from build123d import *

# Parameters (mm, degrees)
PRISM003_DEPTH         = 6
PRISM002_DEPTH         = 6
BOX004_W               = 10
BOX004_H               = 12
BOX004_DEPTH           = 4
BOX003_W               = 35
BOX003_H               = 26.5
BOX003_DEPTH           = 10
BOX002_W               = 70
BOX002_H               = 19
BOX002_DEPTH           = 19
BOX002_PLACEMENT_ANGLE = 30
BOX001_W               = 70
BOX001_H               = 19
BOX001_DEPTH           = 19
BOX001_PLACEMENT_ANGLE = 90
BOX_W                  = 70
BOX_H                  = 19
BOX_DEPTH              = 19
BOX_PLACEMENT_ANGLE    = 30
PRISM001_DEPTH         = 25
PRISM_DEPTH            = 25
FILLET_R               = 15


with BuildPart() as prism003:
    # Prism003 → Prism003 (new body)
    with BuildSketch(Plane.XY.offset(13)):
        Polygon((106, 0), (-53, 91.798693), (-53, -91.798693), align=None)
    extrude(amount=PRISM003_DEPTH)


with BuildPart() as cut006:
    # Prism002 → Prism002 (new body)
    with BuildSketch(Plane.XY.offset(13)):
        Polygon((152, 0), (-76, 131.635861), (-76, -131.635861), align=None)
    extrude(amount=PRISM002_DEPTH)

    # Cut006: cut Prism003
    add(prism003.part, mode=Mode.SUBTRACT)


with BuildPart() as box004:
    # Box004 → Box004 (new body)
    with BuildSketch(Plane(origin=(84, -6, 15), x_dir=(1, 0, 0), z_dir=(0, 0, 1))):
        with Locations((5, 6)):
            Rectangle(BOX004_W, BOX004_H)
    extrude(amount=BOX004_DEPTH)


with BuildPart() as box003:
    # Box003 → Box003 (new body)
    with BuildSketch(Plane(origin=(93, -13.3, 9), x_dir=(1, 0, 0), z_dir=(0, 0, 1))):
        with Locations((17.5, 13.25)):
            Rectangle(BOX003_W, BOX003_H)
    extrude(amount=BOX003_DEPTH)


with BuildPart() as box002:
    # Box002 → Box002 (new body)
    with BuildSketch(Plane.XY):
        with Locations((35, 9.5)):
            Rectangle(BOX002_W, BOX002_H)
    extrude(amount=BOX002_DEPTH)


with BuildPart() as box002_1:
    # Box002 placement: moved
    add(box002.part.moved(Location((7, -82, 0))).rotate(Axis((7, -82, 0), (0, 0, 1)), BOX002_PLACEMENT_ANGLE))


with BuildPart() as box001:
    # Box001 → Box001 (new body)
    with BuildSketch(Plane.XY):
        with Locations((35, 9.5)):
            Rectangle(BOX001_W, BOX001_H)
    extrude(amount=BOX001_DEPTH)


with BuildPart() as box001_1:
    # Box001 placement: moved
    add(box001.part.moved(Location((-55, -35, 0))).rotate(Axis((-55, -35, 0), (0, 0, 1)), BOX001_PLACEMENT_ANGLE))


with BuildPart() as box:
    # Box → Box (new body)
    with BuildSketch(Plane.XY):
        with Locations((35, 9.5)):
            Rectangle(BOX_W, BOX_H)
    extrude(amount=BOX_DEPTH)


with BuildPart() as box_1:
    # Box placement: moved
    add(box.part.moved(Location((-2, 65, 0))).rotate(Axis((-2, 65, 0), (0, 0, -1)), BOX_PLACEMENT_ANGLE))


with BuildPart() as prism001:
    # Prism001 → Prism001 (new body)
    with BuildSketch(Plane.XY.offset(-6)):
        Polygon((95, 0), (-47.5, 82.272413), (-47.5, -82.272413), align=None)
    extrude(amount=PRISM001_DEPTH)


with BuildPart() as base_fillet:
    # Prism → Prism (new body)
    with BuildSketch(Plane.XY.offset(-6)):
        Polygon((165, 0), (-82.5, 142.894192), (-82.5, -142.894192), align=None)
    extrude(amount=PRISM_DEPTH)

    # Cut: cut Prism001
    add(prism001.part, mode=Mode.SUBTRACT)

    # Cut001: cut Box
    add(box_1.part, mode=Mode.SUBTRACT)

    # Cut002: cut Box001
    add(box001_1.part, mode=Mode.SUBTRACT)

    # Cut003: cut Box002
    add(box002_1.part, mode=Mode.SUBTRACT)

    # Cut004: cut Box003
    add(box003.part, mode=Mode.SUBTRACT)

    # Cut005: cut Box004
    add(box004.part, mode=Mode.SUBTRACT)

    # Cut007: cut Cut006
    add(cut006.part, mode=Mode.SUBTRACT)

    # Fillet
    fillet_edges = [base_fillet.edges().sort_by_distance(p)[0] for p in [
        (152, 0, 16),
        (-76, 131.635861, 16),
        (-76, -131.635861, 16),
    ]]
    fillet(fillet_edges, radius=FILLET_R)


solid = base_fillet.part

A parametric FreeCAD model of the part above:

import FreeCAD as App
import Part
import Sketcher

V = App.Vector
Q = App.Units.Quantity


def edges_at(feature, points):
    """Names of the edges that pass closest to the given points."""
    edges = feature.Shape.Edges
    near = lambda p: min(range(len(edges)), key=lambda i: edges[i].distToShape(Part.Vertex(*p))[0])
    return sorted({f"Edge{near(p) + 1}" for p in points})

doc = App.newDocument("Part")
params = doc.addObject("Spreadsheet::Sheet", "Params")
for row, (alias, value) in enumerate([
    ("pad1_length", "6 mm"),
    ("pad2_length", "6 mm"),
    ("sketch3_width", "10 mm"),
    ("sketch3_height", "12 mm"),
    ("pad3_length", "4 mm"),
    ("sketch4_width", "35 mm"),
    ("sketch4_height", "26.5 mm"),
    ("pad4_length", "10 mm"),
    ("sketch5_width", "70 mm"),
    ("sketch5_height", "19 mm"),
    ("pad5_length", "19 mm"),
    ("sketch6_width", "70 mm"),
    ("sketch6_height", "19 mm"),
    ("pad6_length", "19 mm"),
    ("sketch7_width", "70 mm"),
    ("sketch7_height", "19 mm"),
    ("pad7_length", "19 mm"),
    ("pad8_length", "25 mm"),
    ("pad9_length", "25 mm"),
    ("fillet_radius", "15 mm"),
], start=1):
    params.set(f"A{row}", alias)
    params.set(f"B{row}", "=" + value)
    params.setAlias(f"B{row}", alias)

body = doc.addObject("PartDesign::Body", "Body")

# Sketch on XY plane
sketch1 = doc.addObject("Sketcher::SketchObject", "Sketch")
body.addObject(sketch1)
sketch1.AttachmentSupport = (doc.XY_Plane, [""])
sketch1.MapMode = "FlatFace"
sketch1.AttachmentOffset = App.Placement(V(0, 0, 13), App.Rotation())
sketch1.addGeometry([
    Part.LineSegment(V(106, 0, 0), V(-53, 91.798693, 0)),
    Part.LineSegment(V(-53, 91.798693, 0), V(-53, -91.798693, 0)),
    Part.LineSegment(V(-53, -91.798693, 0), V(106, 0, 0)),
], False)
sketch1.addConstraint([
    Sketcher.Constraint("Coincident", 0, 2, 1, 1),
    Sketcher.Constraint("Coincident", 1, 2, 2, 1),
    Sketcher.Constraint("Coincident", 2, 2, 0, 1),
    Sketcher.Constraint("Vertical", 1),
    Sketcher.Constraint("PointOnObject", 2, 2, -1),
    Sketcher.Constraint("Equal", 0, 2),
    Sketcher.Constraint("Angle", 0, Q("150 deg")),
    Sketcher.Constraint("DistanceX", 0, 2, -1, 1, 53.0),
    Sketcher.Constraint("DistanceX", -1, 1, 2, 2, 106.0),
])
pad1 = doc.addObject("PartDesign::Pad", "Pad")
body.addObject(pad1)
pad1.Profile = sketch1
pad1.setExpression("Length", "Params.pad1_length")
body2 = doc.addObject("PartDesign::Body", "Body001")

# Sketch on XY plane
sketch2 = doc.addObject("Sketcher::SketchObject", "Sketch001")
body2.addObject(sketch2)
sketch2.AttachmentSupport = (doc.getObject("XY_Plane001"), [""])
sketch2.MapMode = "FlatFace"
sketch2.AttachmentOffset = App.Placement(V(0, 0, 13), App.Rotation())
sketch2.addGeometry([
    Part.LineSegment(V(152, 0, 0), V(-76, 131.635861, 0)),
    Part.LineSegment(V(-76, 131.635861, 0), V(-76, -131.635861, 0)),
    Part.LineSegment(V(-76, -131.635861, 0), V(152, 0, 0)),
], False)
sketch2.addConstraint([
    Sketcher.Constraint("Coincident", 0, 2, 1, 1),
    Sketcher.Constraint("Coincident", 1, 2, 2, 1),
    Sketcher.Constraint("Coincident", 2, 2, 0, 1),
    Sketcher.Constraint("Vertical", 1),
    Sketcher.Constraint("PointOnObject", 2, 2, -1),
    Sketcher.Constraint("Equal", 0, 2),
    Sketcher.Constraint("Angle", 0, Q("150 deg")),
    Sketcher.Constraint("DistanceX", 0, 2, -1, 1, 76.0),
    Sketcher.Constraint("DistanceX", -1, 1, 2, 2, 152.0),
])
pad2 = doc.addObject("PartDesign::Pad", "Pad001")
body2.addObject(pad2)
pad2.Profile = sketch2
pad2.setExpression("Length", "Params.pad2_length")
doc.recompute()

boolean = doc.addObject("PartDesign::Boolean", "Boolean")
body2.addObject(boolean)
boolean.Type = "Cut"
boolean.addObjects([body])
body3 = doc.addObject("PartDesign::Body", "Body002")

# Sketch on XY plane
sketch3 = doc.addObject("Sketcher::SketchObject", "Sketch002")
body3.addObject(sketch3)
sketch3.AttachmentSupport = (doc.getObject("XY_Plane002"), [""])
sketch3.MapMode = "FlatFace"
sketch3.AttachmentOffset = App.Placement(V(0, 0, 15), App.Rotation())
sketch3.addGeometry([
    Part.LineSegment(V(84, 6, 0), V(84, -6, 0)),
    Part.LineSegment(V(84, -6, 0), V(94, -6, 0)),
    Part.LineSegment(V(94, -6, 0), V(94, 6, 0)),
    Part.LineSegment(V(94, 6, 0), V(84, 6, 0)),
], False)
sketch3.addConstraint([
    Sketcher.Constraint("Coincident", 0, 2, 1, 1),
    Sketcher.Constraint("Coincident", 1, 2, 2, 1),
    Sketcher.Constraint("Coincident", 2, 2, 3, 1),
    Sketcher.Constraint("Coincident", 3, 2, 0, 1),
    Sketcher.Constraint("Vertical", 0),
    Sketcher.Constraint("Horizontal", 1),
    Sketcher.Constraint("Vertical", 2),
    Sketcher.Constraint("Horizontal", 3),
    Sketcher.Constraint("DistanceX", 1, 1, 1, 2, 10.0),
    Sketcher.Constraint("DistanceY", 0, 2, 0, 1, 12.0),
    Sketcher.Constraint("DistanceX", -1, 1, 0, 2, 84.0),
    Sketcher.Constraint("DistanceY", 0, 2, -1, 1, 6.0),
])
sketch3.setExpression("Constraints[8]", "Params.sketch3_width")
sketch3.setExpression("Constraints[9]", "Params.sketch3_height")
pad3 = doc.addObject("PartDesign::Pad", "Pad002")
body3.addObject(pad3)
pad3.Profile = sketch3
pad3.setExpression("Length", "Params.pad3_length")
body4 = doc.addObject("PartDesign::Body", "Body003")

# Sketch on XY plane
sketch4 = doc.addObject("Sketcher::SketchObject", "Sketch003")
body4.addObject(sketch4)
sketch4.AttachmentSupport = (doc.getObject("XY_Plane003"), [""])
sketch4.MapMode = "FlatFace"
sketch4.AttachmentOffset = App.Placement(V(0, 0, 9), App.Rotation())
sketch4.addGeometry([
    Part.LineSegment(V(93, 13.2, 0), V(93, -13.3, 0)),
    Part.LineSegment(V(93, -13.3, 0), V(128, -13.3, 0)),
    Part.LineSegment(V(128, -13.3, 0), V(128, 13.2, 0)),
    Part.LineSegment(V(128, 13.2, 0), V(93, 13.2, 0)),
], False)
sketch4.addConstraint([
    Sketcher.Constraint("Coincident", 0, 2, 1, 1),
    Sketcher.Constraint("Coincident", 1, 2, 2, 1),
    Sketcher.Constraint("Coincident", 2, 2, 3, 1),
    Sketcher.Constraint("Coincident", 3, 2, 0, 1),
    Sketcher.Constraint("Vertical", 0),
    Sketcher.Constraint("Horizontal", 1),
    Sketcher.Constraint("Vertical", 2),
    Sketcher.Constraint("Horizontal", 3),
    Sketcher.Constraint("DistanceX", 1, 1, 1, 2, 35.0),
    Sketcher.Constraint("DistanceY", 0, 2, 0, 1, 26.5),
    Sketcher.Constraint("DistanceX", -1, 1, 0, 2, 93.0),
    Sketcher.Constraint("DistanceY", 0, 2, -1, 1, 13.3),
])
sketch4.setExpression("Constraints[8]", "Params.sketch4_width")
sketch4.setExpression("Constraints[9]", "Params.sketch4_height")
pad4 = doc.addObject("PartDesign::Pad", "Pad003")
body4.addObject(pad4)
pad4.Profile = sketch4
pad4.setExpression("Length", "Params.pad4_length")
body5 = doc.addObject("PartDesign::Body", "Body004")

# Sketch on XY plane
sketch5 = doc.addObject("Sketcher::SketchObject", "Sketch004")
body5.addObject(sketch5)
sketch5.AttachmentSupport = (doc.getObject("XY_Plane004"), [""])
sketch5.MapMode = "FlatFace"
sketch5.addGeometry([
    Part.LineSegment(V(0, 19, 0), V(0, 0, 0)),
    Part.LineSegment(V(0, 0, 0), V(70, 0, 0)),
    Part.LineSegment(V(70, 0, 0), V(70, 19, 0)),
    Part.LineSegment(V(70, 19, 0), V(0, 19, 0)),
], False)
sketch5.addConstraint([
    Sketcher.Constraint("Coincident", 0, 2, 1, 1),
    Sketcher.Constraint("Coincident", 1, 2, 2, 1),
    Sketcher.Constraint("Coincident", 2, 2, 3, 1),
    Sketcher.Constraint("Coincident", 3, 2, 0, 1),
    Sketcher.Constraint("Vertical", 0),
    Sketcher.Constraint("Horizontal", 1),
    Sketcher.Constraint("Vertical", 2),
    Sketcher.Constraint("Horizontal", 3),
    Sketcher.Constraint("Coincident", 0, 2, -1, 1),
    Sketcher.Constraint("DistanceX", 1, 1, 1, 2, 70.0),
    Sketcher.Constraint("DistanceY", 0, 2, 0, 1, 19.0),
])
sketch5.setExpression("Constraints[9]", "Params.sketch5_width")
sketch5.setExpression("Constraints[10]", "Params.sketch5_height")
pad5 = doc.addObject("PartDesign::Pad", "Pad004")
body5.addObject(pad5)
pad5.Profile = sketch5
pad5.setExpression("Length", "Params.pad5_length")
body6 = doc.addObject("PartDesign::Body", "Body005")
doc.recompute()

body5.Placement = App.Placement(V(7, -82, 0), App.Rotation(V(0, 0, 1), 30))
boolean2 = doc.addObject("PartDesign::Boolean", "Boolean001")
body6.addObject(boolean2)
boolean2.Type = "Fuse"
boolean2.addObjects([body5])
body7 = doc.addObject("PartDesign::Body", "Body006")

# Sketch on XY plane
sketch6 = doc.addObject("Sketcher::SketchObject", "Sketch005")
body7.addObject(sketch6)
sketch6.AttachmentSupport = (doc.getObject("XY_Plane006"), [""])
sketch6.MapMode = "FlatFace"
sketch6.addGeometry([
    Part.LineSegment(V(0, 19, 0), V(0, 0, 0)),
    Part.LineSegment(V(0, 0, 0), V(70, 0, 0)),
    Part.LineSegment(V(70, 0, 0), V(70, 19, 0)),
    Part.LineSegment(V(70, 19, 0), V(0, 19, 0)),
], False)
sketch6.addConstraint([
    Sketcher.Constraint("Coincident", 0, 2, 1, 1),
    Sketcher.Constraint("Coincident", 1, 2, 2, 1),
    Sketcher.Constraint("Coincident", 2, 2, 3, 1),
    Sketcher.Constraint("Coincident", 3, 2, 0, 1),
    Sketcher.Constraint("Vertical", 0),
    Sketcher.Constraint("Horizontal", 1),
    Sketcher.Constraint("Vertical", 2),
    Sketcher.Constraint("Horizontal", 3),
    Sketcher.Constraint("Coincident", 0, 2, -1, 1),
    Sketcher.Constraint("DistanceX", 1, 1, 1, 2, 70.0),
    Sketcher.Constraint("DistanceY", 0, 2, 0, 1, 19.0),
])
sketch6.setExpression("Constraints[9]", "Params.sketch6_width")
sketch6.setExpression("Constraints[10]", "Params.sketch6_height")
pad6 = doc.addObject("PartDesign::Pad", "Pad005")
body7.addObject(pad6)
pad6.Profile = sketch6
pad6.setExpression("Length", "Params.pad6_length")
body8 = doc.addObject("PartDesign::Body", "Body007")
doc.recompute()

body7.Placement = App.Placement(V(-55, -35, 0), App.Rotation(V(0, 0, 1), 90))
boolean3 = doc.addObject("PartDesign::Boolean", "Boolean002")
body8.addObject(boolean3)
boolean3.Type = "Fuse"
boolean3.addObjects([body7])
body9 = doc.addObject("PartDesign::Body", "Body008")

# Sketch on XY plane
sketch7 = doc.addObject("Sketcher::SketchObject", "Sketch006")
body9.addObject(sketch7)
sketch7.AttachmentSupport = (doc.getObject("XY_Plane008"), [""])
sketch7.MapMode = "FlatFace"
sketch7.addGeometry([
    Part.LineSegment(V(0, 19, 0), V(0, 0, 0)),
    Part.LineSegment(V(0, 0, 0), V(70, 0, 0)),
    Part.LineSegment(V(70, 0, 0), V(70, 19, 0)),
    Part.LineSegment(V(70, 19, 0), V(0, 19, 0)),
], False)
sketch7.addConstraint([
    Sketcher.Constraint("Coincident", 0, 2, 1, 1),
    Sketcher.Constraint("Coincident", 1, 2, 2, 1),
    Sketcher.Constraint("Coincident", 2, 2, 3, 1),
    Sketcher.Constraint("Coincident", 3, 2, 0, 1),
    Sketcher.Constraint("Vertical", 0),
    Sketcher.Constraint("Horizontal", 1),
    Sketcher.Constraint("Vertical", 2),
    Sketcher.Constraint("Horizontal", 3),
    Sketcher.Constraint("Coincident", 0, 2, -1, 1),
    Sketcher.Constraint("DistanceX", 1, 1, 1, 2, 70.0),
    Sketcher.Constraint("DistanceY", 0, 2, 0, 1, 19.0),
])
sketch7.setExpression("Constraints[9]", "Params.sketch7_width")
sketch7.setExpression("Constraints[10]", "Params.sketch7_height")
pad7 = doc.addObject("PartDesign::Pad", "Pad006")
body9.addObject(pad7)
pad7.Profile = sketch7
pad7.setExpression("Length", "Params.pad7_length")
body10 = doc.addObject("PartDesign::Body", "Body009")
doc.recompute()

body9.Placement = App.Placement(V(-2, 65, 0), App.Rotation(V(0, 0, -1), 30))
boolean4 = doc.addObject("PartDesign::Boolean", "Boolean003")
body10.addObject(boolean4)
boolean4.Type = "Fuse"
boolean4.addObjects([body9])
body11 = doc.addObject("PartDesign::Body", "Body010")

# Sketch on XY plane
sketch8 = doc.addObject("Sketcher::SketchObject", "Sketch007")
body11.addObject(sketch8)
sketch8.AttachmentSupport = (doc.getObject("XY_Plane010"), [""])
sketch8.MapMode = "FlatFace"
sketch8.AttachmentOffset = App.Placement(V(0, 0, -6), App.Rotation())
sketch8.addGeometry([
    Part.LineSegment(V(95, 0, 0), V(-47.5, 82.272413, 0)),
    Part.LineSegment(V(-47.5, 82.272413, 0), V(-47.5, -82.272413, 0)),
    Part.LineSegment(V(-47.5, -82.272413, 0), V(95, 0, 0)),
], False)
sketch8.addConstraint([
    Sketcher.Constraint("Coincident", 0, 2, 1, 1),
    Sketcher.Constraint("Coincident", 1, 2, 2, 1),
    Sketcher.Constraint("Coincident", 2, 2, 0, 1),
    Sketcher.Constraint("Vertical", 1),
    Sketcher.Constraint("PointOnObject", 2, 2, -1),
    Sketcher.Constraint("Equal", 0, 2),
    Sketcher.Constraint("Angle", 0, Q("150 deg")),
    Sketcher.Constraint("DistanceX", -1, 1, 2, 2, 95.0),
    Sketcher.Constraint("DistanceX", 0, 2, -1, 1, 47.5),
])
pad8 = doc.addObject("PartDesign::Pad", "Pad007")
body11.addObject(pad8)
pad8.Profile = sketch8
pad8.setExpression("Length", "Params.pad8_length")
body12 = doc.addObject("PartDesign::Body", "Body011")

# Sketch on XY plane
sketch9 = doc.addObject("Sketcher::SketchObject", "Sketch008")
body12.addObject(sketch9)
sketch9.AttachmentSupport = (doc.getObject("XY_Plane011"), [""])
sketch9.MapMode = "FlatFace"
sketch9.AttachmentOffset = App.Placement(V(0, 0, -6), App.Rotation())
sketch9.addGeometry([
    Part.LineSegment(V(165, 0, 0), V(-82.5, 142.894192, 0)),
    Part.LineSegment(V(-82.5, 142.894192, 0), V(-82.5, -142.894192, 0)),
    Part.LineSegment(V(-82.5, -142.894192, 0), V(165, 0, 0)),
], False)
sketch9.addConstraint([
    Sketcher.Constraint("Coincident", 0, 2, 1, 1),
    Sketcher.Constraint("Coincident", 1, 2, 2, 1),
    Sketcher.Constraint("Coincident", 2, 2, 0, 1),
    Sketcher.Constraint("Vertical", 1),
    Sketcher.Constraint("PointOnObject", 2, 2, -1),
    Sketcher.Constraint("Equal", 0, 2),
    Sketcher.Constraint("Angle", 0, Q("150 deg")),
    Sketcher.Constraint("DistanceX", -1, 1, 2, 2, 165.0),
    Sketcher.Constraint("DistanceX", 0, 2, -1, 1, 82.5),
])
pad9 = doc.addObject("PartDesign::Pad", "Pad008")
body12.addObject(pad9)
pad9.Profile = sketch9
pad9.setExpression("Length", "Params.pad9_length")
doc.recompute()

boolean5 = doc.addObject("PartDesign::Boolean", "Boolean004")
body12.addObject(boolean5)
boolean5.Type = "Cut"
boolean5.addObjects([body11])
doc.recompute()

boolean6 = doc.addObject("PartDesign::Boolean", "Boolean005")
body12.addObject(boolean6)
boolean6.Type = "Cut"
boolean6.addObjects([body10])
doc.recompute()

boolean7 = doc.addObject("PartDesign::Boolean", "Boolean006")
body12.addObject(boolean7)
boolean7.Type = "Cut"
boolean7.addObjects([body8])
doc.recompute()

boolean8 = doc.addObject("PartDesign::Boolean", "Boolean007")
body12.addObject(boolean8)
boolean8.Type = "Cut"
boolean8.addObjects([body6])
doc.recompute()

boolean9 = doc.addObject("PartDesign::Boolean", "Boolean008")
body12.addObject(boolean9)
boolean9.Type = "Cut"
boolean9.addObjects([body4])
doc.recompute()

boolean10 = doc.addObject("PartDesign::Boolean", "Boolean009")
body12.addObject(boolean10)
boolean10.Type = "Cut"
boolean10.addObjects([body3])
doc.recompute()

boolean11 = doc.addObject("PartDesign::Boolean", "Boolean010")
body12.addObject(boolean11)
boolean11.Type = "Cut"
boolean11.addObjects([body2])
doc.recompute()

fillet = doc.addObject("PartDesign::Fillet", "Fillet")
body12.addObject(fillet)
fillet.Base = (boolean11, edges_at(boolean11, [(152, 0, 16), (-76, 131.636, 16), (-76, -131.636, 16)]))
fillet.setExpression("Radius", "Params.fillet_radius")

doc.recompute()
